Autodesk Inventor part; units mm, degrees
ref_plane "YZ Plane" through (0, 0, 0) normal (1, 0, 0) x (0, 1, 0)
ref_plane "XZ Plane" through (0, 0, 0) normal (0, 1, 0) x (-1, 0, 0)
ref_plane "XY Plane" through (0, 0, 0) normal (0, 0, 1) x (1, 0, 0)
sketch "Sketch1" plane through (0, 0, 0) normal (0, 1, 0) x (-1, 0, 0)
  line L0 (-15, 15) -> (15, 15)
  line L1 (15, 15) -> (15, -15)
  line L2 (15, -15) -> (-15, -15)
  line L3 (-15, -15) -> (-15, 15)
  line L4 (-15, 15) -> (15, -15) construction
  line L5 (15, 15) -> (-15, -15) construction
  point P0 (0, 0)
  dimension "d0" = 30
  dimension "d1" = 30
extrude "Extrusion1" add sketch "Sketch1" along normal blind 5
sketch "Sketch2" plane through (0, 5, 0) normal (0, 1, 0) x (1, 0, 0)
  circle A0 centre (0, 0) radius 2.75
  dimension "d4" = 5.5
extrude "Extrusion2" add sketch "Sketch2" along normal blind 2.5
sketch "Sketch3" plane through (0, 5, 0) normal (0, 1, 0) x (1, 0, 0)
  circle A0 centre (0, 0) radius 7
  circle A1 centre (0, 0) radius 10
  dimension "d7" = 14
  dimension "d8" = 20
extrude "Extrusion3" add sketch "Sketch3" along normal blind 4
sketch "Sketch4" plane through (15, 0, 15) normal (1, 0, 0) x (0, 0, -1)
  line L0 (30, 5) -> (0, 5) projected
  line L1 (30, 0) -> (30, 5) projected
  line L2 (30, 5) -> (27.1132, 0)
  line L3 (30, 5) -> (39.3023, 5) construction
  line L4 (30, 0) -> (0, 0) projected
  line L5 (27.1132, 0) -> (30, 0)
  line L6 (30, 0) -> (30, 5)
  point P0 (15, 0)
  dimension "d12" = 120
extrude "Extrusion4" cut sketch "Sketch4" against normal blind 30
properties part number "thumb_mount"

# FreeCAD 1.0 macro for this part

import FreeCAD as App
import Part
import Sketcher
from FreeCAD import Vector
Q = App.Units.Quantity


def add_polygon(sketch, points):
    """Adds a closed chain of lines whose ends are joined by coincident constraints."""
    first, n = sketch.GeometryCount, len(points)
    for a, b in zip(points, points[1:] + points[:1]):
        sketch.addGeometry(Part.LineSegment(App.Vector(*a, 0), App.Vector(*b, 0)), False)
    for i in range(n):
        sketch.addConstraint(Sketcher.Constraint("Coincident", first + i, 2, first + (i + 1) % n, 1))

doc = App.newDocument("Part")
body = doc.addObject("PartDesign::Body", "Body")

# Sketch on XZ plane
sketch1 = doc.addObject("Sketcher::SketchObject", "Sketch")
body.addObject(sketch1)
sketch1.AttachmentSupport = (doc.XZ_Plane, [""])
sketch1.MapMode = "FlatFace"
add_polygon(sketch1, [(-15, 15), (15, 15), (15, -15), (-15, -15)])  # lines 0-3
sketch1.addConstraint(Sketcher.Constraint("Horizontal", 0))
sketch1.addConstraint(Sketcher.Constraint("Vertical", 1))
sketch1.addConstraint(Sketcher.Constraint("Horizontal", 2))
sketch1.addConstraint(Sketcher.Constraint("Vertical", 3))
sketch1.addConstraint(Sketcher.Constraint("Symmetric", 0, 2, 2, 2, -1, 1))
sketch1.addConstraint(Sketcher.Constraint("Equal", 2, 1))
sketch1.addConstraint(Sketcher.Constraint("DistanceX", 0, 1, 0, 2, Q("30 mm")))
pad1 = doc.addObject("PartDesign::Pad", "Pad")
body.addObject(pad1)
pad1.Profile = sketch1
pad1.Length = 5
pad1.Reversed = True

# Sketch on XZ plane
sketch2 = doc.addObject("Sketcher::SketchObject", "Sketch001")
body.addObject(sketch2)
sketch2.AttachmentSupport = (doc.XZ_Plane, [""])
sketch2.MapMode = "FlatFace"
sketch2.AttachmentOffset = App.Placement(Vector(0, 0, -5), App.Rotation())
sketch2.addGeometry(Part.Circle(Vector(0, 0, 0), Vector(0, 0, 1), 2.75), False)
sketch2.addConstraint(Sketcher.Constraint("Coincident", 0, 3, -1, 1))
sketch2.addConstraint(Sketcher.Constraint("Diameter", 0, Q("5.5 mm")))
pad2 = doc.addObject("PartDesign::Pad", "Pad001")
body.addObject(pad2)
pad2.Profile = sketch2
pad2.Length = 2.5
pad2.Reversed = True

# Sketch on XZ plane
sketch3 = doc.addObject("Sketcher::SketchObject", "Sketch002")
body.addObject(sketch3)
sketch3.AttachmentSupport = (doc.XZ_Plane, [""])
sketch3.MapMode = "FlatFace"
sketch3.AttachmentOffset = App.Placement(Vector(0, 0, -5), App.Rotation())
sketch3.addGeometry(Part.Circle(Vector(0, 0, 0), Vector(0, 0, 1), 10), False)
sketch3.addGeometry(Part.Circle(Vector(0, 0, 0), Vector(0, 0, 1), 7), False)
sketch3.addConstraint(Sketcher.Constraint("Coincident", 0, 3, -1, 1))
sketch3.addConstraint(Sketcher.Constraint("Coincident", 1, 3, -1, 1))
sketch3.addConstraint(Sketcher.Constraint("Diameter", 0, Q("20 mm")))
sketch3.addConstraint(Sketcher.Constraint("Diameter", 1, Q("14 mm")))
pad3 = doc.addObject("PartDesign::Pad", "Pad002")
body.addObject(pad3)
pad3.Profile = sketch3
pad3.Length = 4
pad3.Reversed = True

# Sketch on YZ plane
sketch4 = doc.addObject("Sketcher::SketchObject", "Sketch003")
body.addObject(sketch4)
sketch4.AttachmentSupport = (doc.YZ_Plane, [""])
sketch4.MapMode = "FlatFace"
sketch4.AttachmentOffset = App.Placement(Vector(0, 0, 15), App.Rotation())
add_polygon(sketch4, [(0, -12.1132), (0, -15), (5, -15)])  # lines 0-2
sketch4.addConstraint(Sketcher.Constraint("Vertical", 0))
sketch4.addConstraint(Sketcher.Constraint("Horizontal", 1))
sketch4.addConstraint(Sketcher.Constraint("PointOnObject", 0, 2, -2))
sketch4.addConstraint(Sketcher.Constraint("DistanceX", 1, 1, 1, 2, Q("5 mm")))
sketch4.addConstraint(Sketcher.Constraint("Angle", 2, Q("149.9996 deg")))
sketch4.addConstraint(Sketcher.Constraint("DistanceY", 0, 2, -1, 1, Q("15 mm")))
pocket1 = doc.addObject("PartDesign::Pocket", "Pocket")
body.addObject(pocket1)
pocket1.Profile = sketch4
pocket1.Length = 30

doc.recompute()
